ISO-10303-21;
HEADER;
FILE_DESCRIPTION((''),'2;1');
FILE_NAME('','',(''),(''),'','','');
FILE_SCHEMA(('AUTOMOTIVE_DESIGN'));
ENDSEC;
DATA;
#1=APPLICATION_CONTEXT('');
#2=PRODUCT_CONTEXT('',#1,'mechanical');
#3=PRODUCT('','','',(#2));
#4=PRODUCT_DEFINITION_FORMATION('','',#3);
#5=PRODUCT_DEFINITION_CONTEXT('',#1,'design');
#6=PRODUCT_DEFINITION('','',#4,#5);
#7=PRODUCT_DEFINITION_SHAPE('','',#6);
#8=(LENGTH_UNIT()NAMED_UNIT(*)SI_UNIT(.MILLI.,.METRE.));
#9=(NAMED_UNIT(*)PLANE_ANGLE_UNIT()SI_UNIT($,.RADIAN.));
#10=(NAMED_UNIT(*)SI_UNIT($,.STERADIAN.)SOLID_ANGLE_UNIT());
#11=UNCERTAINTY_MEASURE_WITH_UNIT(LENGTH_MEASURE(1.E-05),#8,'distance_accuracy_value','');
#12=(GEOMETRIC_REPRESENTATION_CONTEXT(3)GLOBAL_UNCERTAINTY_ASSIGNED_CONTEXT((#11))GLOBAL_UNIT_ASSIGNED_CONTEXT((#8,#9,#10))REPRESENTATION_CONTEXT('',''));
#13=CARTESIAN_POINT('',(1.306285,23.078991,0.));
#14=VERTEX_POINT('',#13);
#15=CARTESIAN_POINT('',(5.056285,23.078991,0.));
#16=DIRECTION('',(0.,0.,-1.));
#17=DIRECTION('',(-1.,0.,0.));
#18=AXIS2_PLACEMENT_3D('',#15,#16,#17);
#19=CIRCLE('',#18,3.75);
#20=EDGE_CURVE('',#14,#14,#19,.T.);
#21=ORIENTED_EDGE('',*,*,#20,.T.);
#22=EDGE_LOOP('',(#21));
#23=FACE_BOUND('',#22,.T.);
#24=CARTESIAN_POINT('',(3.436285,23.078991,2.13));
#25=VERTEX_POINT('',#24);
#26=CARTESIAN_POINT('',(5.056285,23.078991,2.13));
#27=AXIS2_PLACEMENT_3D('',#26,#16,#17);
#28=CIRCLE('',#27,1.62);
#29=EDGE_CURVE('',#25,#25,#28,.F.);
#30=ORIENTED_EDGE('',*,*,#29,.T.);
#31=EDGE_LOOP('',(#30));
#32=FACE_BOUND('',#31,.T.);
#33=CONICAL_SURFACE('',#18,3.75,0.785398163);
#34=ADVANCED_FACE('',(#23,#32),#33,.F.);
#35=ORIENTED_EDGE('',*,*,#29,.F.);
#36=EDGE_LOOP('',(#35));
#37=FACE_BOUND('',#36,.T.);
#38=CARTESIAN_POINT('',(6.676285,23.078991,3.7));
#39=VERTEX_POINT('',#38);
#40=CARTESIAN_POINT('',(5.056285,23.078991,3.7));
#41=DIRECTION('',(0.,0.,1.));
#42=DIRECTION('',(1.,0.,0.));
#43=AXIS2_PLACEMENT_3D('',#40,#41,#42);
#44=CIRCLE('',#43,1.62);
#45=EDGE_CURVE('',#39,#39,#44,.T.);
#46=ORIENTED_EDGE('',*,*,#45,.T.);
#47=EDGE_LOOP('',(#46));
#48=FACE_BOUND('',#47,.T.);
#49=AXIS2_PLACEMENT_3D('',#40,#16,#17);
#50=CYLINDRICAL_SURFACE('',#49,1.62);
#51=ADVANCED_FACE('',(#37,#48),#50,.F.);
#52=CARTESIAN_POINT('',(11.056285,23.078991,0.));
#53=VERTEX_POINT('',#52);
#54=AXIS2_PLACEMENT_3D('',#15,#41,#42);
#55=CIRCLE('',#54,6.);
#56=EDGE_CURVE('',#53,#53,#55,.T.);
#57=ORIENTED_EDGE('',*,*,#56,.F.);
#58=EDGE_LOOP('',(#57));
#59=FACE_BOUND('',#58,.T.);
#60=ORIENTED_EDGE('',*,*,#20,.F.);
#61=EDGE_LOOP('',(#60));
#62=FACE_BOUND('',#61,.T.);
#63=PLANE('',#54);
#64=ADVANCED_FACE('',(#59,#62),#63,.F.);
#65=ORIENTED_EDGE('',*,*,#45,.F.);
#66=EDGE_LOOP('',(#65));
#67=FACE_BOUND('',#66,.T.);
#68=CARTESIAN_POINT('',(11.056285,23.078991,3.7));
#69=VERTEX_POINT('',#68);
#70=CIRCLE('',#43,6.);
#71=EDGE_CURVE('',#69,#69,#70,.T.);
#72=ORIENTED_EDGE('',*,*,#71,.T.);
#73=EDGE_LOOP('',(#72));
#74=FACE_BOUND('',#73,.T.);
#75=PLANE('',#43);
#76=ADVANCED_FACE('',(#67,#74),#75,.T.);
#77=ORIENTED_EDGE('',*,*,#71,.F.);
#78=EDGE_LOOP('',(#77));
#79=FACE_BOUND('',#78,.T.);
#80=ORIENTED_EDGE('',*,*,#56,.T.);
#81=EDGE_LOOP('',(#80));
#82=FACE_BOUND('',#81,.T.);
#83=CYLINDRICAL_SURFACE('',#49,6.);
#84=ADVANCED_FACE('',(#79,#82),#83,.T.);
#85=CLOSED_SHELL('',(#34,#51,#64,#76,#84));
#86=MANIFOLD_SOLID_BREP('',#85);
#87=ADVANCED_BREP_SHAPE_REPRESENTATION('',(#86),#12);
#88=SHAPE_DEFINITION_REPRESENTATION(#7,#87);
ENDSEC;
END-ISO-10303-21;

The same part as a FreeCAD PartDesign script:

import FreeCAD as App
import Part
import Sketcher
from FreeCAD import Vector
Q = App.Units.Quantity


def add_polygon(sketch, points):
    """Adds a closed chain of lines whose ends are joined by coincident constraints."""
    first, n = sketch.GeometryCount, len(points)
    for a, b in zip(points, points[1:] + points[:1]):
        sketch.addGeometry(Part.LineSegment(App.Vector(*a, 0), App.Vector(*b, 0)), False)
    for i in range(n):
        sketch.addConstraint(Sketcher.Constraint("Coincident", first + i, 2, first + (i + 1) % n, 1))

doc = App.newDocument("Part")
body = doc.addObject("PartDesign::Body", "Body")

sketch1 = doc.addObject("Sketcher::SketchObject", "Sketch")
body.addObject(sketch1)
sketch1.AttachmentSupport = (doc.XY_Plane, [""])
sketch1.MapMode = "FlatFace"
sketch1.addGeometry([
    Part.Circle(Vector(5.1, 23.1, 0), Vector(0, 0, 1), 6),
    Part.Circle(Vector(5.1, 23.1, 0), Vector(0, 0, 1), 1.6),
], False)
sketch1.addConstraint([
    Sketcher.Constraint("Coincident", 1, 3, 0, 3),
    Sketcher.Constraint("Diameter", 0, Q("12 mm")),
    Sketcher.Constraint("Diameter", 1, Q("3.24 mm")),
    Sketcher.Constraint("DistanceY", -1, 1, 0, 3, Q("23.078991 mm")),
    Sketcher.Constraint("DistanceX", -1, 1, 0, 3, Q("5.056285 mm")),
])
pad1 = doc.addObject("PartDesign::Pad", "Pad")
body.addObject(pad1)
pad1.Profile = sketch1
pad1.Length = 3.7

sketch2 = doc.addObject("Sketcher::SketchObject", "Sketch001")
body.addObject(sketch2)
sketch2.AttachmentSupport = (doc.YZ_Plane, [""])
sketch2.MapMode = "FlatFace"
sketch2.AttachmentOffset = App.Placement(Vector(0, 0, 5.056285), App.Rotation())
add_polygon(sketch2, [(23.1, 0), (26.8, 0), (23.1, 3.8)])
sketch2.addGeometry(Part.LineSegment(Vector(23.1, 0, 0), Vector(23.1, 3.8, 0)), True)
sketch2.addConstraint([
    Sketcher.Constraint("Horizontal", 0),
    Sketcher.Constraint("Vertical", 2),
    Sketcher.Constraint("Vertical", 3),
    Sketcher.Constraint("Coincident", 3, 1, 2, 2),
    Sketcher.Constraint("PointOnObject", 0, 2, -1),
    Sketcher.Constraint("Equal", 0, 2),
    Sketcher.Constraint("Equal", 2, 3),
    Sketcher.Constraint("DistanceX", 0, 1, 0, 2, Q("3.75 mm")),
    Sketcher.Constraint("DistanceX", -1, 1, 0, 2, Q("26.828991 mm")),
])
groove = doc.addObject("PartDesign::Groove", "Groove")
body.addObject(groove)
groove.Profile = sketch2
groove.ReferenceAxis = (sketch2, ["Axis0"])
groove.Angle = 360

doc.recompute()
